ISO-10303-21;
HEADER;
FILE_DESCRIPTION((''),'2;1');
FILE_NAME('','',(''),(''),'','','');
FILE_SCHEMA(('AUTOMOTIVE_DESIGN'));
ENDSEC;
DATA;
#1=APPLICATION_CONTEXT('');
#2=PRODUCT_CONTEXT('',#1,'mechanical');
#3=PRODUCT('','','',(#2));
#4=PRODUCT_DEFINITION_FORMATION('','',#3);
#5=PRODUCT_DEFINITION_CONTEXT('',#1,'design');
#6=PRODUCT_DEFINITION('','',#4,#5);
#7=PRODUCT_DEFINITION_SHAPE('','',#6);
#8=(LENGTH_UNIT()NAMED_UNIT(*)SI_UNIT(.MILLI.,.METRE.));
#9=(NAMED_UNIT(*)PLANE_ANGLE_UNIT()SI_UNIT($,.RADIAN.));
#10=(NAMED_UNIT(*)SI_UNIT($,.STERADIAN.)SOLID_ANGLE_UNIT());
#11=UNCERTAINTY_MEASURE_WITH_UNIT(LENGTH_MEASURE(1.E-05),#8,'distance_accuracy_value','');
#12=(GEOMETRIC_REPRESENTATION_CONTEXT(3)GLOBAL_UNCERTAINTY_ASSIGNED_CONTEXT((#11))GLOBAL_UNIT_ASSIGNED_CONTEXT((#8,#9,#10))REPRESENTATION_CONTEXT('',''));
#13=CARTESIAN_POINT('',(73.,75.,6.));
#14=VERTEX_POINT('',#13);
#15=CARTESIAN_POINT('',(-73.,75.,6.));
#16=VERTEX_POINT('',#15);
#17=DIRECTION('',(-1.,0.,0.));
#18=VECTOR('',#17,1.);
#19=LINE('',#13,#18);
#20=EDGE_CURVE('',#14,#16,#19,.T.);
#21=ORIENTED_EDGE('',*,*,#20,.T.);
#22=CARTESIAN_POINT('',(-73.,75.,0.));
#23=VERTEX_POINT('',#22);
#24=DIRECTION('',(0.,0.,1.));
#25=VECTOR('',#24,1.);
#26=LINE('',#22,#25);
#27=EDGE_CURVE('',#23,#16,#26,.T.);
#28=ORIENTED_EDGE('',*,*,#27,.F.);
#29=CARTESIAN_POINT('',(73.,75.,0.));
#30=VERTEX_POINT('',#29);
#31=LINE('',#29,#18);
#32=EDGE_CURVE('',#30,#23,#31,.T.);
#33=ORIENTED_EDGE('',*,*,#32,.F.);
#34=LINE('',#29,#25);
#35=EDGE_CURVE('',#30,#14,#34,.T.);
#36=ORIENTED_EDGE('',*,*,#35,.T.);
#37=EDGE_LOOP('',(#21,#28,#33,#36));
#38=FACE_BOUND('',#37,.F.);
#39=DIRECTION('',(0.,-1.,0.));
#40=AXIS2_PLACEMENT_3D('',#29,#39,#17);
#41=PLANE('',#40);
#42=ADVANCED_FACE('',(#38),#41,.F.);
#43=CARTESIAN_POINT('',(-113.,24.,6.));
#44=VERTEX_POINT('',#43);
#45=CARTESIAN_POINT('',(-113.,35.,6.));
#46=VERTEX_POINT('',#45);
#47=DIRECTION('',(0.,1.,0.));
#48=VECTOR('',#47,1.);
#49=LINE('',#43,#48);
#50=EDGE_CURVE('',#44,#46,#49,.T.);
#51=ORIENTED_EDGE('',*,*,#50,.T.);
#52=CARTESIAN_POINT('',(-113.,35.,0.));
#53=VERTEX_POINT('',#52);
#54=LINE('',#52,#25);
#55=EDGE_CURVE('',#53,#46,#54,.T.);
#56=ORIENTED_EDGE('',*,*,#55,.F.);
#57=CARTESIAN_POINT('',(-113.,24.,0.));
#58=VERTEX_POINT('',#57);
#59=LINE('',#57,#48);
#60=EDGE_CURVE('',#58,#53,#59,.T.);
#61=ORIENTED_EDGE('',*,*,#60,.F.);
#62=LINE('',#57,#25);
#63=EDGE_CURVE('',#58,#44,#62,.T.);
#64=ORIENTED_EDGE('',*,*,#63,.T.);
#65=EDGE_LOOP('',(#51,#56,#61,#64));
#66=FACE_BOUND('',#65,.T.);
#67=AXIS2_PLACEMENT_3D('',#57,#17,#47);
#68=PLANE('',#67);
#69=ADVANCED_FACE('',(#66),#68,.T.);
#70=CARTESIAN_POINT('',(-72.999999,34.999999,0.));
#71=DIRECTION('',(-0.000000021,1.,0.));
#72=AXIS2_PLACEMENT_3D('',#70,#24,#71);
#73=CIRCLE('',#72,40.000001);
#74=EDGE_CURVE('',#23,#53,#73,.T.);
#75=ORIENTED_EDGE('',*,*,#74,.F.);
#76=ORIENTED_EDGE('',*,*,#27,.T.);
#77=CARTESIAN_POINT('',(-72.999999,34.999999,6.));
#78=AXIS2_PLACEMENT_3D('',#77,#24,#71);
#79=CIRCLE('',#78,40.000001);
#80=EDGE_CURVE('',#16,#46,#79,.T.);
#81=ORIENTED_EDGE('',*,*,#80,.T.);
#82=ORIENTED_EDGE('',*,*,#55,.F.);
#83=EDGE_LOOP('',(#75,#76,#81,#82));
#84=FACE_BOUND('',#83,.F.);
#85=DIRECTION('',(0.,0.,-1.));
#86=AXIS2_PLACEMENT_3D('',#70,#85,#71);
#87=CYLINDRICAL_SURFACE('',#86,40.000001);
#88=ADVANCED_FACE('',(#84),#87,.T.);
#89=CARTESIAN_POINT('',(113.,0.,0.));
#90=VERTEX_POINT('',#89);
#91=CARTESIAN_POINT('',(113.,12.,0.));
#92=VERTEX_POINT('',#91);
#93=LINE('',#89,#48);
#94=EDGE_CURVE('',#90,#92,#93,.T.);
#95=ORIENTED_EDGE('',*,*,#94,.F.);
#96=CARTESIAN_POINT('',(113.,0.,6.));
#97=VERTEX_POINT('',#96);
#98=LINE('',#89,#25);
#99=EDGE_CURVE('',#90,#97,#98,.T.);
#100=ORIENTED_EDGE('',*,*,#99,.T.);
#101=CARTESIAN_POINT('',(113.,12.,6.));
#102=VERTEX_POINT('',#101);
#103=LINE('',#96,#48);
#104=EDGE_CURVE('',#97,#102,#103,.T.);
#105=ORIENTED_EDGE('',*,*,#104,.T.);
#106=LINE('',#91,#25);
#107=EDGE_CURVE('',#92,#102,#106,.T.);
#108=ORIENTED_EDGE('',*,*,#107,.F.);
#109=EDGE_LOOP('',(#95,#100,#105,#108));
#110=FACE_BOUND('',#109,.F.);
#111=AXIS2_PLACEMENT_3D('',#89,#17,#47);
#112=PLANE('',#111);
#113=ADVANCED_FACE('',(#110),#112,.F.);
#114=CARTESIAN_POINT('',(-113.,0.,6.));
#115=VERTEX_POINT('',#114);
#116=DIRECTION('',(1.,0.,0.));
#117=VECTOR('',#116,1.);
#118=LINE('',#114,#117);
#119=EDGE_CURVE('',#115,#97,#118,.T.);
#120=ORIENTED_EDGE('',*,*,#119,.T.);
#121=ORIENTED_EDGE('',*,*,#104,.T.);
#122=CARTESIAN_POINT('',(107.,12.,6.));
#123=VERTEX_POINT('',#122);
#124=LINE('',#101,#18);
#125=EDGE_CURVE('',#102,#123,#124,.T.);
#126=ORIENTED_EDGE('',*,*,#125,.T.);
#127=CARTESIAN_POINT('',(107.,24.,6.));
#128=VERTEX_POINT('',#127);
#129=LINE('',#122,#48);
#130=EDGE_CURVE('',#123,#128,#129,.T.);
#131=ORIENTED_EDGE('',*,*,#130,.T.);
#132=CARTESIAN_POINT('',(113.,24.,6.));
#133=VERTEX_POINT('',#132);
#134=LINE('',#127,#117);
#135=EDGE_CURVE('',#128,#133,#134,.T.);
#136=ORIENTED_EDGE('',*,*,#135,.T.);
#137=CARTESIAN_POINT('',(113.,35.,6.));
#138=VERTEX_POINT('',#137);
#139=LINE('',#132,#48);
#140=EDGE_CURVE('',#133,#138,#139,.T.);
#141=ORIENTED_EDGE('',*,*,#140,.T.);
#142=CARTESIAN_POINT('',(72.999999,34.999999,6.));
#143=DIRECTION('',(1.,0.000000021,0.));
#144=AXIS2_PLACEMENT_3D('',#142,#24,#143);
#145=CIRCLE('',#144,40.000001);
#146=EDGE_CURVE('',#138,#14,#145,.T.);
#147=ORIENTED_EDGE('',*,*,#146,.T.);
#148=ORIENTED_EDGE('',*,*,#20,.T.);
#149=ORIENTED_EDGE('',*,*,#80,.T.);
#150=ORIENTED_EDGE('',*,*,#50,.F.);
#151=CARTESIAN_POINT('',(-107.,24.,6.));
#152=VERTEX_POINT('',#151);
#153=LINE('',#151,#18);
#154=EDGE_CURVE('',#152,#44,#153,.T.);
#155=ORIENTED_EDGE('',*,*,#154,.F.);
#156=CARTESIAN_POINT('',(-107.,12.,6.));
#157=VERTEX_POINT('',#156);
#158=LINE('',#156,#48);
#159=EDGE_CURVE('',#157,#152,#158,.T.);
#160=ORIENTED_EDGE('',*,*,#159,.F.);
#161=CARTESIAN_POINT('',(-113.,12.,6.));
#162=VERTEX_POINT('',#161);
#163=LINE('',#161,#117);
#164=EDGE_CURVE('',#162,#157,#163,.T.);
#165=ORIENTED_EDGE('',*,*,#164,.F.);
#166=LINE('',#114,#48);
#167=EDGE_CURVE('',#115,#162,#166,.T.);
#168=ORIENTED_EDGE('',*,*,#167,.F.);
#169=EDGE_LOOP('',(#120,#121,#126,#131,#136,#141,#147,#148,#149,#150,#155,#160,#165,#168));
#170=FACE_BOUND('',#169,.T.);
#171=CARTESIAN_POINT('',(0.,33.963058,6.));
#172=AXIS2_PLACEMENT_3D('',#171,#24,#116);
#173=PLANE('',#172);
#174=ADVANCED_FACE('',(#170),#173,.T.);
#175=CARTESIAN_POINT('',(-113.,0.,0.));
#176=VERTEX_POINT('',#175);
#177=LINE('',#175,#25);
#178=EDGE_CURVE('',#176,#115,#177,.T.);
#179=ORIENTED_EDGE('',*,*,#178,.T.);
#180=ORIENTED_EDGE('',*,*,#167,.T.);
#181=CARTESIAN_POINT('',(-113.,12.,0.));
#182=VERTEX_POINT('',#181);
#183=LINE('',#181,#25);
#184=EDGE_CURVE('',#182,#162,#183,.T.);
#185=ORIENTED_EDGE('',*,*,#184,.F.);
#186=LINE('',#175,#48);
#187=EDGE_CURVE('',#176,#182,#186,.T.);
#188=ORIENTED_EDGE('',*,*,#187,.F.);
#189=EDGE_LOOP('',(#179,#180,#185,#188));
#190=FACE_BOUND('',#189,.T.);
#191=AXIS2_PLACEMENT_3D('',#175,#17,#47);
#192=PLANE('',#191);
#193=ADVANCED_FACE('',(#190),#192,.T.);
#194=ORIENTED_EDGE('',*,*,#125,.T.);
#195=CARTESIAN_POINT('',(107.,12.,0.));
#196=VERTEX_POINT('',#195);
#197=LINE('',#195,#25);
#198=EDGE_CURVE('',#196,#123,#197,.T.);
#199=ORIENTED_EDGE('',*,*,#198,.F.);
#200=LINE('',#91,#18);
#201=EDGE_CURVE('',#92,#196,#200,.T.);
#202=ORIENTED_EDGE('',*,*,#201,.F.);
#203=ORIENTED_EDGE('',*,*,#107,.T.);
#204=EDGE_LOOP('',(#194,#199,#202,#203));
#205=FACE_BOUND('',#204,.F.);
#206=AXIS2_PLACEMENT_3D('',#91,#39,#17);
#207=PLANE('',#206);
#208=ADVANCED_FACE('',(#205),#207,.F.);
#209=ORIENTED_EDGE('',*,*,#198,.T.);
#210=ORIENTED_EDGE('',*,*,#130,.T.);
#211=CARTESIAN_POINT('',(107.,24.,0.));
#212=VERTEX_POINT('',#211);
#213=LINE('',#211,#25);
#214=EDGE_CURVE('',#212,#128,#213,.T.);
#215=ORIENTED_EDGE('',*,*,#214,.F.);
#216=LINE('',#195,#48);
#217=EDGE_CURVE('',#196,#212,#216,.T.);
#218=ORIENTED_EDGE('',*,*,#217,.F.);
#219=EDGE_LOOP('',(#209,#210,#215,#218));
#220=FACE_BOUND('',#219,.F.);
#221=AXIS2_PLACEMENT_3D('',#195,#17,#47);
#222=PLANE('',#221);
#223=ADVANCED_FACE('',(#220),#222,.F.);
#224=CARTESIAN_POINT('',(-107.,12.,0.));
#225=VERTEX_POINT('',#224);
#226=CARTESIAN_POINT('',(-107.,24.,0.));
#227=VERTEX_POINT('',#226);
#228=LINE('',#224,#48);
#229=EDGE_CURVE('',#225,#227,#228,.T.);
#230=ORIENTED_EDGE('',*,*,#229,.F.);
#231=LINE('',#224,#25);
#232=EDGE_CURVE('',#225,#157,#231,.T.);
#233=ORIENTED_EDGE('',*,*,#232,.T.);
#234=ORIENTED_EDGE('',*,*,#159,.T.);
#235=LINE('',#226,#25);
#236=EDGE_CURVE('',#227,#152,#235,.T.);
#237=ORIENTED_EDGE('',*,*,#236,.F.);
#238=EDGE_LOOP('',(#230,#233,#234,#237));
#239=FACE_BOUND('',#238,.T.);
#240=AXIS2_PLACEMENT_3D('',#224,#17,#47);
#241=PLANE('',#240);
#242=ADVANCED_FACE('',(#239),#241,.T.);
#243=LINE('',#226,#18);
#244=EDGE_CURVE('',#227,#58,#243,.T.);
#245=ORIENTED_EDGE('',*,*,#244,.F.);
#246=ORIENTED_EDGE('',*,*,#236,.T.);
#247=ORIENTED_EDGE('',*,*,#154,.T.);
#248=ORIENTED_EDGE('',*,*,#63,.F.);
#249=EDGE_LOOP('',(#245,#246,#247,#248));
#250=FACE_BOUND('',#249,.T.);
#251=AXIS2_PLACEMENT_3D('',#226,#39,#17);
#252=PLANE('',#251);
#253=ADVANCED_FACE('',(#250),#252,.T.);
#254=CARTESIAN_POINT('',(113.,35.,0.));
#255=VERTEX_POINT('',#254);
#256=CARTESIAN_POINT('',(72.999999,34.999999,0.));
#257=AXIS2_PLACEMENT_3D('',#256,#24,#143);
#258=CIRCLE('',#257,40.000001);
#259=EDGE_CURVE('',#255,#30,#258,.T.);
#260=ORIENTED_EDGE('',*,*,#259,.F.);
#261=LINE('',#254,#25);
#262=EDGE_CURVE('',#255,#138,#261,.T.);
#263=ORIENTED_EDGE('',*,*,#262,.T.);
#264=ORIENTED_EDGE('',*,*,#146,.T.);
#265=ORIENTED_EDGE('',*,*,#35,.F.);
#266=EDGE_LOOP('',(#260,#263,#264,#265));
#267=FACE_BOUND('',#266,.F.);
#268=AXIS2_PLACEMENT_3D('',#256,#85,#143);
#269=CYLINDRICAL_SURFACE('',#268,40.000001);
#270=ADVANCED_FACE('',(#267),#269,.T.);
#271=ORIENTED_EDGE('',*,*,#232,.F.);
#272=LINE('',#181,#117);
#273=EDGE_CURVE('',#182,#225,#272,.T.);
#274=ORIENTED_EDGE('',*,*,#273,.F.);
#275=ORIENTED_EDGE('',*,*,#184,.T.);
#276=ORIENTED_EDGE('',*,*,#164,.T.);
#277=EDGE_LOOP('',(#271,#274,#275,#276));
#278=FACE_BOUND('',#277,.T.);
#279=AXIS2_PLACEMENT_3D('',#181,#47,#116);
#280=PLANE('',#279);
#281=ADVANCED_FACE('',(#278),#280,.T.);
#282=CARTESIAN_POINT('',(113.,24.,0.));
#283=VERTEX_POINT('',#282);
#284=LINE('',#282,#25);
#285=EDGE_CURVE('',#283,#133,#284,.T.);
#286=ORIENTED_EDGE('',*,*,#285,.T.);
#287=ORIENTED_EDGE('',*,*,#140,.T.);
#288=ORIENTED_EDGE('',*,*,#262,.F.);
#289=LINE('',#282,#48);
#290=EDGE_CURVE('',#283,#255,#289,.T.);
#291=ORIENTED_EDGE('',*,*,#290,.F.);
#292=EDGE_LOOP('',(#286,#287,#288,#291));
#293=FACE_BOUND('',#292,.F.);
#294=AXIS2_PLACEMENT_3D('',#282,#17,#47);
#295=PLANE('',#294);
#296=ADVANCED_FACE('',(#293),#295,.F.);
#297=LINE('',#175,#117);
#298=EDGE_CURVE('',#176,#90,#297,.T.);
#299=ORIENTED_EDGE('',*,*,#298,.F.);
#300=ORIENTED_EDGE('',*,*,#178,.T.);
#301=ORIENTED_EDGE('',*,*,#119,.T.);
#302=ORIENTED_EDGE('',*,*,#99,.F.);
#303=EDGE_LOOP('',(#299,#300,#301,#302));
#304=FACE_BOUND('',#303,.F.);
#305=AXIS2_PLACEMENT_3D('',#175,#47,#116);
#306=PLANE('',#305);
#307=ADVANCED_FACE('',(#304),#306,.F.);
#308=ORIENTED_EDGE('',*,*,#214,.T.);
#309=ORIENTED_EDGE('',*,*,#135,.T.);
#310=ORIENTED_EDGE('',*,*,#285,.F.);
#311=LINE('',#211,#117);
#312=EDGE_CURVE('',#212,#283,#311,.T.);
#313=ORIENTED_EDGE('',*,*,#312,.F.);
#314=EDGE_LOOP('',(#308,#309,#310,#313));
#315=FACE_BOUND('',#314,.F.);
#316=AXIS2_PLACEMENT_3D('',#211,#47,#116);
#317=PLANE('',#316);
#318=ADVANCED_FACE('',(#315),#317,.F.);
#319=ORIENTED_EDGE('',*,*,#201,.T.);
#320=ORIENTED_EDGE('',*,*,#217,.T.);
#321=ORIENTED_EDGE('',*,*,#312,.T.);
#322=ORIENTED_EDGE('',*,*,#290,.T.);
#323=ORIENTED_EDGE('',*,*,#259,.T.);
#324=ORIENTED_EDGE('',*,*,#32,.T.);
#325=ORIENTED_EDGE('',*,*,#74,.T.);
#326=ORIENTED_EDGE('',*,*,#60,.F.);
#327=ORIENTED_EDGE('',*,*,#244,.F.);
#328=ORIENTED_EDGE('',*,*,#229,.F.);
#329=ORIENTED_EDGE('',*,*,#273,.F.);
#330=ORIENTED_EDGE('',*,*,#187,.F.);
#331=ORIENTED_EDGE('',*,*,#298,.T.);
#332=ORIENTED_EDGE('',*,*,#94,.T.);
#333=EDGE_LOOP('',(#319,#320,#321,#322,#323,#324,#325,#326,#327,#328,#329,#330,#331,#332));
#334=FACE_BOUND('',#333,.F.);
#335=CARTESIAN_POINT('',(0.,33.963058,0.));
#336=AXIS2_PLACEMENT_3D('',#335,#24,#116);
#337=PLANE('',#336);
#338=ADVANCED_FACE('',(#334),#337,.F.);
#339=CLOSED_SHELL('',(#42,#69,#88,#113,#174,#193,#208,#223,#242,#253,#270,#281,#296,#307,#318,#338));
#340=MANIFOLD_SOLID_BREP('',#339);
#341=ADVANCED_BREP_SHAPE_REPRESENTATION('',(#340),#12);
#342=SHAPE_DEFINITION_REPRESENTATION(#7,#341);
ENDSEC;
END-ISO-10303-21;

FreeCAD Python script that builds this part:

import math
import FreeCAD as App
import Part
import Sketcher
from FreeCAD import Vector

doc = App.newDocument("Part")
body = doc.addObject("PartDesign::Body", "Body")

sketch1 = body.newObject("Sketcher::SketchObject", "Sketch")
sketch1.AttachmentSupport = (doc.getObject("XY_Plane"), [""])
sketch1.MapMode = "FlatFace"
sketch1.addGeometry([
    Part.LineSegment(Vector(113, 0, 0), Vector(113, 12, 0)),
    Part.LineSegment(Vector(113, 12, 0), Vector(107, 12, 0)),
    Part.LineSegment(Vector(107, 12, 0), Vector(107, 24, 0)),
    Part.LineSegment(Vector(107, 24, 0), Vector(113, 24, 0)),
    Part.LineSegment(Vector(113, 24, 0), Vector(113, 35, 0)),
    Part.ArcOfCircle(Part.Circle(Vector(73, 35, 0), Vector(0, 0, 1), 40), math.radians(0), math.radians(90)),
    Part.LineSegment(Vector(73, 75, 0), Vector(-73, 75, 0)),
    Part.ArcOfCircle(Part.Circle(Vector(-73, 35, 0), Vector(0, 0, 1), 40), math.radians(90), math.radians(180)),
    Part.LineSegment(Vector(-113, 35, 0), Vector(-113, 24, 0)),
    Part.LineSegment(Vector(-113, 24, 0), Vector(-107, 24, 0)),
    Part.LineSegment(Vector(-107, 24, 0), Vector(-107, 12, 0)),
    Part.LineSegment(Vector(-107, 12, 0), Vector(-113, 12, 0)),
    Part.LineSegment(Vector(-113, 12, 0), Vector(-113, 0, 0)),
    Part.LineSegment(Vector(-113, 0, 0), Vector(113, 0, 0)),
], False)
sketch1.addConstraint([
    Sketcher.Constraint("Coincident", 0, 2, 1, 1),
    Sketcher.Constraint("Coincident", 1, 2, 2, 1),
    Sketcher.Constraint("Coincident", 2, 2, 3, 1),
    Sketcher.Constraint("Coincident", 3, 2, 4, 1),
    Sketcher.Constraint("Tangent", 4, 2, 5, 1),
    Sketcher.Constraint("Tangent", 5, 2, 6, 1),
    Sketcher.Constraint("Tangent", 6, 2, 7, 1),
    Sketcher.Constraint("Tangent", 7, 2, 8, 1),
    Sketcher.Constraint("Coincident", 8, 2, 9, 1),
    Sketcher.Constraint("Coincident", 9, 2, 10, 1),
    Sketcher.Constraint("Coincident", 10, 2, 11, 1),
    Sketcher.Constraint("Coincident", 11, 2, 12, 1),
    Sketcher.Constraint("Coincident", 12, 2, 13, 1),
    Sketcher.Constraint("Coincident", 13, 2, 0, 1),
    Sketcher.Constraint("Vertical", 0),
    Sketcher.Constraint("Horizontal", 1),
    Sketcher.Constraint("Vertical", 2),
    Sketcher.Constraint("Horizontal", 3),
    Sketcher.Constraint("Vertical", 4),
    Sketcher.Constraint("Horizontal", 6),
    Sketcher.Constraint("Vertical", 8),
    Sketcher.Constraint("Horizontal", 9),
    Sketcher.Constraint("Vertical", 10),
    Sketcher.Constraint("Horizontal", 11),
    Sketcher.Constraint("Vertical", 12),
    Sketcher.Constraint("Horizontal", 13),
    Sketcher.Constraint("Equal", 5, 7),
    Sketcher.Constraint("Symmetric", 12, 2, 13, 2, -1, 1),
    Sketcher.Constraint("Symmetric", 3, 2, 8, 2, -2),
    Sketcher.Constraint("Symmetric", 1, 2, 10, 2, -2),
    Sketcher.Constraint("Vertical", 0, 2, 3, 2),
    Sketcher.Constraint("Equal", 0, 2),
    Sketcher.Constraint("Radius", 5, 40.000001),
    Sketcher.Constraint("DistanceX", 1, 2, 1, 1, 6.0),
    Sketcher.Constraint("DistanceX", 6, 2, 6, 1, 146.0),
    Sketcher.Constraint("DistanceY", 0, 1, 0, 2, 12.0),
    Sketcher.Constraint("DistanceY", 4, 1, 4, 2, 11.0),
])
pad1 = body.newObject("PartDesign::Pad", "Pad")
pad1.Profile = sketch1
pad1.Length = 6

doc.recompute()
